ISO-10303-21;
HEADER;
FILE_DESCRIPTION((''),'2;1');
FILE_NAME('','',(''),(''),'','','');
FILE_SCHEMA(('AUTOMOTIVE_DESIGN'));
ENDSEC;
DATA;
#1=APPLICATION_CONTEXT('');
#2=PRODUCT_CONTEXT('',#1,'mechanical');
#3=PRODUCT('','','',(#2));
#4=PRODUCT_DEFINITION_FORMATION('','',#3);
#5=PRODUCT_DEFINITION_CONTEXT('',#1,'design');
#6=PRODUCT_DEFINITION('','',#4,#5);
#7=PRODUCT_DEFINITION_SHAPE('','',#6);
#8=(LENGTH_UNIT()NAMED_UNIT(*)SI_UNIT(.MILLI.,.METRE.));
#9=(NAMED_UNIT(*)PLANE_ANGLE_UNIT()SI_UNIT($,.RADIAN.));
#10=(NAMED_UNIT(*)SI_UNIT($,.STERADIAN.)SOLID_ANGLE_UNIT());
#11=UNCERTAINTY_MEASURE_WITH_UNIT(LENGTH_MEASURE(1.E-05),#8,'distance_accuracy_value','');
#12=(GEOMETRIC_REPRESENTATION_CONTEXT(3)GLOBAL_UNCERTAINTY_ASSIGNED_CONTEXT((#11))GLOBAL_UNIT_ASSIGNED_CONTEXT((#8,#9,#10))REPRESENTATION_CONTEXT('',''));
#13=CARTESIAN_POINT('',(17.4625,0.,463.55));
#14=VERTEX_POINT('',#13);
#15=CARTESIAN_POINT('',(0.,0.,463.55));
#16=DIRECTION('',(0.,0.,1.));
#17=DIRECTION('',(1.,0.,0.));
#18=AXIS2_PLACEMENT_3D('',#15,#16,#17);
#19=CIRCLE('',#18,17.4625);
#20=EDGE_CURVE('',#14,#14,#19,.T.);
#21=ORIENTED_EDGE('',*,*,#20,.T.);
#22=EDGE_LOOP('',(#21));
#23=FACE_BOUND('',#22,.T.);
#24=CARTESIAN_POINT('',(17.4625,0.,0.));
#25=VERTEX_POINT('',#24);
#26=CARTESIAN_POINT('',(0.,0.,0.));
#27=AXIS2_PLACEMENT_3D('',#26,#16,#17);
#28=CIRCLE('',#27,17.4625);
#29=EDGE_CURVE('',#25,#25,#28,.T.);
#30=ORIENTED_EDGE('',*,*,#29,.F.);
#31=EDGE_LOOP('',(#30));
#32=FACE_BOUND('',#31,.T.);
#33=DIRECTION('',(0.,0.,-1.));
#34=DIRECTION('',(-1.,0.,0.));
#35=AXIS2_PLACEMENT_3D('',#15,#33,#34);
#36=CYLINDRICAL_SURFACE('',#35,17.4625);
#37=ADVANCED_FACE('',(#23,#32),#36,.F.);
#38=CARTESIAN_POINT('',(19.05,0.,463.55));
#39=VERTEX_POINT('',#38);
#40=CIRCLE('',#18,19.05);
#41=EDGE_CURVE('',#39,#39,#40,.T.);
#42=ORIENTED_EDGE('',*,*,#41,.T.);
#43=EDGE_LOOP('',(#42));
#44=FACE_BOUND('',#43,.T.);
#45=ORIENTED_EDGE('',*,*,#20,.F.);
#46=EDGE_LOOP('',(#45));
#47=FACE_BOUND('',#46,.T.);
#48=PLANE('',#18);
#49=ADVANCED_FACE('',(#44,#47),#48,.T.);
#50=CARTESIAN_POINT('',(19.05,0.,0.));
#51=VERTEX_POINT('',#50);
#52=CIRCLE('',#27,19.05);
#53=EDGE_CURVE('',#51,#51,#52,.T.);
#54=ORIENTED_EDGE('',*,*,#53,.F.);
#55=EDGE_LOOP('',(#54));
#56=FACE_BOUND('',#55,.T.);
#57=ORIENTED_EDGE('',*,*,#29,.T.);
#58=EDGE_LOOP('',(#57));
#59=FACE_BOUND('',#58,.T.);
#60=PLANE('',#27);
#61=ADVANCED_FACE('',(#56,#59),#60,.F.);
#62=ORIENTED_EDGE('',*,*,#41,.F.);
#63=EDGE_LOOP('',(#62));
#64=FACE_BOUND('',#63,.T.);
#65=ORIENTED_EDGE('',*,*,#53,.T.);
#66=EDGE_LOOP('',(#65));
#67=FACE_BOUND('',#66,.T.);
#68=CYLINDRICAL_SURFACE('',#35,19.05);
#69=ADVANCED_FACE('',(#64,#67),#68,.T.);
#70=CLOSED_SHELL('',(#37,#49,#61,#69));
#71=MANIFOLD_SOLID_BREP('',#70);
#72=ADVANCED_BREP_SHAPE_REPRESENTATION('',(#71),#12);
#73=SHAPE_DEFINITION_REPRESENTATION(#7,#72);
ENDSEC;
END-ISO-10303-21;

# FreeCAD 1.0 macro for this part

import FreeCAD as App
import Part
import Sketcher
from FreeCAD import Vector
Q = App.Units.Quantity

doc = App.newDocument("Part")
params = doc.addObject("Spreadsheet::Sheet", "Params")
for row, (alias, value) in enumerate([
    ("sketch1_diameter", "1.5 in"),
    ("sketch1_diameter2", "1.375 in"),
    ("pad1_length", "18.25 in"),
], start=1):
    params.set(f"A{row}", alias)
    params.set(f"B{row}", "=" + value)
    params.setAlias(f"B{row}", alias)

body = doc.addObject("PartDesign::Body", "Body")

# Sketch on XY plane
sketch1 = body.newObject("Sketcher::SketchObject", "Sketch")
sketch1.AttachmentSupport = (doc.getObject("XY_Plane"), [""])
sketch1.MapMode = "FlatFace"
sketch1.addGeometry([
    Part.Circle(Vector(0, 0, 0), Vector(0, 0, 1), 19),
    Part.Circle(Vector(0, 0, 0), Vector(0, 0, 1), 17),
], False)
sketch1.addConstraint([
    Sketcher.Constraint("Coincident", 0, 3, -1, 1),
    Sketcher.Constraint("Coincident", 1, 3, -1, 1),
    Sketcher.Constraint("Diameter", 0, Q("1.5 in")),
    Sketcher.Constraint("Diameter", 1, Q("1.375 in")),
])
sketch1.setExpression("Constraints[2]", "Params.sketch1_diameter")
sketch1.setExpression("Constraints[3]", "Params.sketch1_diameter2")
pad1 = body.newObject("PartDesign::Pad", "Pad")
pad1.Profile = sketch1
pad1.setExpression("Length", "Params.pad1_length")

doc.recompute()
